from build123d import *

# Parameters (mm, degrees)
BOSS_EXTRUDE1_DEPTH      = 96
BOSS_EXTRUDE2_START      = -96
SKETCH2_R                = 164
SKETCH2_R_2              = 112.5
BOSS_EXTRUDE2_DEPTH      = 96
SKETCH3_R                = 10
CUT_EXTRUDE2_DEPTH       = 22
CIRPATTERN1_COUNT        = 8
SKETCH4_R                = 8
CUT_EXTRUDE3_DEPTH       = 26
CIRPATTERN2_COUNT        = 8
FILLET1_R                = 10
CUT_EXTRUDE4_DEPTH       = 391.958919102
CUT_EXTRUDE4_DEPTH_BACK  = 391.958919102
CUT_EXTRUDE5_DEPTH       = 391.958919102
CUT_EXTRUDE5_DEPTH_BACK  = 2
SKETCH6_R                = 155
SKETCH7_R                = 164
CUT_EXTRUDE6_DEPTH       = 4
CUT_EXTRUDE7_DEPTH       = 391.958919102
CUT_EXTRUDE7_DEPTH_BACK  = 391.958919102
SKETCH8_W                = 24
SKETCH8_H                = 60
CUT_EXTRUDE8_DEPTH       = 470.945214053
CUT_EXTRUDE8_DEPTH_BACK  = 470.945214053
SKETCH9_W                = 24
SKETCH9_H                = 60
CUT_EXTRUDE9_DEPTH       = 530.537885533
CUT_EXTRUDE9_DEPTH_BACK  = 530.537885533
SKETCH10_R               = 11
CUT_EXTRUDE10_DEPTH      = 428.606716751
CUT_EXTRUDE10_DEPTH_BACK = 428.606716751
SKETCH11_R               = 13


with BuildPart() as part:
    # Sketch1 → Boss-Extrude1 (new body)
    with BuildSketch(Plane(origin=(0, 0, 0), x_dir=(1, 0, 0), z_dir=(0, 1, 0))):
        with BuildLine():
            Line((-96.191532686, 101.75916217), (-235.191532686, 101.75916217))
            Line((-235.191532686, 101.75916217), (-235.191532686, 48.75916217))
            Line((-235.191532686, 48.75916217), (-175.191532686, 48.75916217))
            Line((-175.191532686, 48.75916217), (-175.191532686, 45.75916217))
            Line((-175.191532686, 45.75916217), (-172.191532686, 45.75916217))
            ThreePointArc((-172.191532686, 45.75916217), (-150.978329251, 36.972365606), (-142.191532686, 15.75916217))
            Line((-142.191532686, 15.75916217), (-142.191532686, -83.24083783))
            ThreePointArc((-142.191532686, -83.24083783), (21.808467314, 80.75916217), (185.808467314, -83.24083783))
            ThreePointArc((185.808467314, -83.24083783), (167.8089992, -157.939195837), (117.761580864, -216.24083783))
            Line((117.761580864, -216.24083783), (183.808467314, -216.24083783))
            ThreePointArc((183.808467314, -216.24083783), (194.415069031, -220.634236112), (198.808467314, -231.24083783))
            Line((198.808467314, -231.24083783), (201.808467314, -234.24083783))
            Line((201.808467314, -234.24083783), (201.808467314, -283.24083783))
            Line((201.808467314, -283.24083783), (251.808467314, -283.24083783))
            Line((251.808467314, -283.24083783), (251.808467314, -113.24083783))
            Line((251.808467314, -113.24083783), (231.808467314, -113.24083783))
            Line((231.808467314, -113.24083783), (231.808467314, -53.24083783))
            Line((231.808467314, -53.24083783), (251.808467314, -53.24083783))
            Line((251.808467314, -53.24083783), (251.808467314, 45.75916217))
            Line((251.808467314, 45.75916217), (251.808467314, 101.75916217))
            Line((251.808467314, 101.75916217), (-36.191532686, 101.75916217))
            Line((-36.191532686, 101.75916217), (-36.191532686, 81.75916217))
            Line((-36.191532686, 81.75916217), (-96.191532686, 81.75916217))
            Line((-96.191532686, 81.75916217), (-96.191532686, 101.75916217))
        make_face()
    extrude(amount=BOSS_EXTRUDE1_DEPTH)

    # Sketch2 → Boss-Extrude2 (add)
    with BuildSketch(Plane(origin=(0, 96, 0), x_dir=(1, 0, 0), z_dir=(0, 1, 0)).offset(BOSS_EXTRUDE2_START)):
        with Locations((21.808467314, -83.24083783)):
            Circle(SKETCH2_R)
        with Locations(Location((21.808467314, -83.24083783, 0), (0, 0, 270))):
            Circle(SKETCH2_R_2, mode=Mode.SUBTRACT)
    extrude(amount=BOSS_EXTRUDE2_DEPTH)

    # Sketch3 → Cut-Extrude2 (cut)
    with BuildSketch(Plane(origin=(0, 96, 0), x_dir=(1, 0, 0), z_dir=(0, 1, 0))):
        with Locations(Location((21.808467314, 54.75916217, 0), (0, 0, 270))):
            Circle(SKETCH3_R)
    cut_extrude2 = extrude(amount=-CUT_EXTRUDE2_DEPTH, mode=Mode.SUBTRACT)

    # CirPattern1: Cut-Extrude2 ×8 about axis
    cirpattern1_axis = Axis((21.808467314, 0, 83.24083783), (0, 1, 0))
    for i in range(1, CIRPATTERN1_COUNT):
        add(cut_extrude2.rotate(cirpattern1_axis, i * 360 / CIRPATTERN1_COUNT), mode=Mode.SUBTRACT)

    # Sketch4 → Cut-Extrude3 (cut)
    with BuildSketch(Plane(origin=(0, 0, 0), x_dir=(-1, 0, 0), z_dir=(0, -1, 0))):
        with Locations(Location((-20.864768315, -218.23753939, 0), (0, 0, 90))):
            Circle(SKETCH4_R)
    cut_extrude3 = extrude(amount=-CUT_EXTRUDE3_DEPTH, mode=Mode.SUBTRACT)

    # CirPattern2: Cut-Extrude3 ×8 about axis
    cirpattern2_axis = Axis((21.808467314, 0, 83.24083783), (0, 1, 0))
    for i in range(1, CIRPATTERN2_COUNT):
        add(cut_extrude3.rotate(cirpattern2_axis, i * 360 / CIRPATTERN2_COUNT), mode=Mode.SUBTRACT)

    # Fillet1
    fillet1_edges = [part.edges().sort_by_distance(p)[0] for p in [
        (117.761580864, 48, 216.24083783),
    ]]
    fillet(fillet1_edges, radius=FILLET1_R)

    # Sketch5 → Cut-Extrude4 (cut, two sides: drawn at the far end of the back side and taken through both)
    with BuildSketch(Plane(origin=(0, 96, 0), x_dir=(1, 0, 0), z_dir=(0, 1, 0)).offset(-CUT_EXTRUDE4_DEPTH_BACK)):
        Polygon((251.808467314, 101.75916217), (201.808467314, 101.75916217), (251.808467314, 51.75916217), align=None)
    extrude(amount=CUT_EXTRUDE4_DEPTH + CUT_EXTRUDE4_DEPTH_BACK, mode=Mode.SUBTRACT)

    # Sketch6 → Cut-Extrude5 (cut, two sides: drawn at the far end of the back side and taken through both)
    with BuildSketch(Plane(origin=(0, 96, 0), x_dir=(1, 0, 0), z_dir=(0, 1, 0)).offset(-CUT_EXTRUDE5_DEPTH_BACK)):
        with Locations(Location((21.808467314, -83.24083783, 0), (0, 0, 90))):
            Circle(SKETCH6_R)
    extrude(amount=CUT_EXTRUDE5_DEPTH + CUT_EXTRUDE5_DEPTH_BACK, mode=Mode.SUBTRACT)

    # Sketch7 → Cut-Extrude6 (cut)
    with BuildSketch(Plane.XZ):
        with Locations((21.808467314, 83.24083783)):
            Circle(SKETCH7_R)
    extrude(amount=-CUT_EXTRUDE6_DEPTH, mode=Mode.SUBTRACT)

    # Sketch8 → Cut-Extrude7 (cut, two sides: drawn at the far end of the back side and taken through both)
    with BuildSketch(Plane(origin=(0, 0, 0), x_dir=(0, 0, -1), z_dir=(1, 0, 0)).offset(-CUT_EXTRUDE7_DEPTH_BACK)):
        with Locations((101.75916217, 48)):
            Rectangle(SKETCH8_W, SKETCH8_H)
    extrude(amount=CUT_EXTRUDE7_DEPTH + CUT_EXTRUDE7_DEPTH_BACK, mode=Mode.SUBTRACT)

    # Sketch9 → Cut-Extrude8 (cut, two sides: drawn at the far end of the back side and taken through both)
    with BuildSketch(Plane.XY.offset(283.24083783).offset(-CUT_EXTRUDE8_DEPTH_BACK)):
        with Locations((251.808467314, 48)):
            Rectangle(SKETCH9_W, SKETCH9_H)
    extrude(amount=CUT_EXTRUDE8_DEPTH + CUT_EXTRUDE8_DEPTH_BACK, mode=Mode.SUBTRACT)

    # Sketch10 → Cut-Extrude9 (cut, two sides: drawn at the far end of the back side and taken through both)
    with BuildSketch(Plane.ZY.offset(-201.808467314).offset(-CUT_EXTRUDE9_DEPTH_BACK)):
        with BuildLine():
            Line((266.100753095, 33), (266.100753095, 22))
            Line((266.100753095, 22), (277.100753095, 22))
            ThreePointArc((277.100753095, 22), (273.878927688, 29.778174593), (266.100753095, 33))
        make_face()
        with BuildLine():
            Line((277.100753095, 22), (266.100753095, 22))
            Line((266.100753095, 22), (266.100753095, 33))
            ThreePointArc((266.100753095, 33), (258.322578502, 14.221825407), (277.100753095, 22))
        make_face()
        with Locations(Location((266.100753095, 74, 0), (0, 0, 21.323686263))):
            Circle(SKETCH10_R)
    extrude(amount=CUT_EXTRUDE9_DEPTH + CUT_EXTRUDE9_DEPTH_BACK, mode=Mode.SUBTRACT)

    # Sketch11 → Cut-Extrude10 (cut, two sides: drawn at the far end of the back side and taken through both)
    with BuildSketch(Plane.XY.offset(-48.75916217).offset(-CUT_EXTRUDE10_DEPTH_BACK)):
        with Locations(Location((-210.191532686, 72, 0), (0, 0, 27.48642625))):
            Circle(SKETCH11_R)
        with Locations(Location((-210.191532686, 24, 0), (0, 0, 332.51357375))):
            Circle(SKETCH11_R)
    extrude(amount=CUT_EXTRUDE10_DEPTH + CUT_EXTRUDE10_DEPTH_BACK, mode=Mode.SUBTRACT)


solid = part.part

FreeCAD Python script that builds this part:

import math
import FreeCAD as App
import Part
import Sketcher
Q = App.Units.Quantity


def edges_at(feature, points):
    """Names of the edges that pass closest to the given points."""
    edges = feature.Shape.Edges
    near = lambda p: min(range(len(edges)), key=lambda i: edges[i].distToShape(Part.Vertex(*p))[0])
    return sorted({f"Edge{near(p) + 1}" for p in points})

doc = App.newDocument("Part")
body = doc.addObject("PartDesign::Body", "Body")

sketch1 = body.newObject("Sketcher::SketchObject", "Sketch")
sketch1.AttachmentSupport = (doc.getObject("XZ_Plane"), [""])
sketch1.MapMode = "FlatFace"
sketch1.addGeometry([
    Part.LineSegment(App.Vector(-96.191533, -101.759162, 0), App.Vector(-235.191533, -101.759162, 0)),
    Part.LineSegment(App.Vector(-235.191533, -101.759162, 0), App.Vector(-235.191533, -48.759162, 0)),
    Part.LineSegment(App.Vector(-235.191533, -48.759162, 0), App.Vector(-175.191533, -48.759162, 0)),
    Part.LineSegment(App.Vector(-175.191533, -48.759162, 0), App.Vector(-175.191533, -45.759162, 0)),
    Part.LineSegment(App.Vector(-175.191533, -45.759162, 0), App.Vector(-172.191533, -45.759162, 0)),
    Part.ArcOfCircle(Part.Circle(App.Vector(-172.191533, -15.759162, 0), App.Vector(0, 0, 1), 30), math.radians(-90), math.radians(0)),
    Part.LineSegment(App.Vector(-142.191533, -15.759162, 0), App.Vector(-142.191533, 83.240838, 0)),
    Part.ArcOfCircle(Part.Circle(App.Vector(21.808467, 83.240838, 0), App.Vector(0, 0, 1), 164), math.radians(180), math.radians(360)),
    Part.ArcOfCircle(Part.Circle(App.Vector(21.808467, 83.240838, 0), App.Vector(0, 0, 1), 164), math.radians(0), math.radians(54.191361)),
    Part.LineSegment(App.Vector(117.761581, 216.240838, 0), App.Vector(183.808467, 216.240838, 0)),
    Part.ArcOfCircle(Part.Circle(App.Vector(183.808467, 231.240838, 0), App.Vector(0, 0, 1), 15), math.radians(-90), math.radians(0)),
    Part.LineSegment(App.Vector(198.808467, 231.240838, 0), App.Vector(201.808467, 234.240838, 0)),
    Part.LineSegment(App.Vector(201.808467, 234.240838, 0), App.Vector(201.808467, 283.240838, 0)),
    Part.LineSegment(App.Vector(201.808467, 283.240838, 0), App.Vector(251.808467, 283.240838, 0)),
    Part.LineSegment(App.Vector(251.808467, 283.240838, 0), App.Vector(251.808467, 113.240838, 0)),
    Part.LineSegment(App.Vector(251.808467, 113.240838, 0), App.Vector(231.808467, 113.240838, 0)),
    Part.LineSegment(App.Vector(231.808467, 113.240838, 0), App.Vector(231.808467, 53.240838, 0)),
    Part.LineSegment(App.Vector(231.808467, 53.240838, 0), App.Vector(251.808467, 53.240838, 0)),
    Part.LineSegment(App.Vector(251.808467, 53.240838, 0), App.Vector(251.808467, -101.759162, 0)),
    Part.LineSegment(App.Vector(251.808467, -101.759162, 0), App.Vector(-36.191533, -101.759162, 0)),
    Part.LineSegment(App.Vector(-36.191533, -101.759162, 0), App.Vector(-36.191533, -81.759162, 0)),
    Part.LineSegment(App.Vector(-36.191533, -81.759162, 0), App.Vector(-96.191533, -81.759162, 0)),
    Part.LineSegment(App.Vector(-96.191533, -81.759162, 0), App.Vector(-96.191533, -101.759162, 0)),
], False)
sketch1.addConstraint([
    Sketcher.Constraint("Coincident", 0, 2, 1, 1),
    Sketcher.Constraint("Coincident", 1, 2, 2, 1),
    Sketcher.Constraint("Coincident", 2, 2, 3, 1),
    Sketcher.Constraint("Coincident", 3, 2, 4, 1),
    Sketcher.Constraint("Tangent", 4, 2, 5, 1),
    Sketcher.Constraint("Tangent", 5, 2, 6, 1),
    Sketcher.Constraint("Tangent", 6, 2, 7, 1),
    Sketcher.Constraint("Tangent", 7, 2, 8, 1),
    Sketcher.Constraint("Coincident", 8, 2, 9, 1),
    Sketcher.Constraint("Tangent", 9, 2, 10, 1),
    Sketcher.Constraint("Coincident", 10, 2, 11, 1),
    Sketcher.Constraint("Coincident", 11, 2, 12, 1),
    Sketcher.Constraint("Coincident", 12, 2, 13, 1),
    Sketcher.Constraint("Coincident", 13, 2, 14, 1),
    Sketcher.Constraint("Coincident", 14, 2, 15, 1),
    Sketcher.Constraint("Coincident", 15, 2, 16, 1),
    Sketcher.Constraint("Coincident", 16, 2, 17, 1),
    Sketcher.Constraint("Coincident", 17, 2, 18, 1),
    Sketcher.Constraint("Coincident", 18, 2, 19, 1),
    Sketcher.Constraint("Coincident", 19, 2, 20, 1),
    Sketcher.Constraint("Coincident", 20, 2, 21, 1),
    Sketcher.Constraint("Coincident", 21, 2, 22, 1),
    Sketcher.Constraint("Coincident", 22, 2, 0, 1),
    Sketcher.Constraint("Horizontal", 0),
    Sketcher.Constraint("Vertical", 1),
    Sketcher.Constraint("Horizontal", 2),
    Sketcher.Constraint("Vertical", 3),
    Sketcher.Constraint("Horizontal", 4),
    Sketcher.Constraint("Vertical", 6),
    Sketcher.Constraint("Horizontal", 9),
    Sketcher.Constraint("Vertical", 12),
    Sketcher.Constraint("Horizontal", 13),
    Sketcher.Constraint("Vertical", 14),
    Sketcher.Constraint("Horizontal", 15),
    Sketcher.Constraint("Vertical", 16),
    Sketcher.Constraint("Horizontal", 17),
    Sketcher.Constraint("Vertical", 18),
    Sketcher.Constraint("Horizontal", 19),
    Sketcher.Constraint("Vertical", 20),
    Sketcher.Constraint("Horizontal", 21),
    Sketcher.Constraint("Vertical", 22),
    Sketcher.Constraint("Equal", 7, 8),
    Sketcher.Constraint("Horizontal", 6, 2, 7, 2),
    Sketcher.Constraint("Horizontal", 0, 2, 18, 2),
    Sketcher.Constraint("Vertical", 14, 2, 17, 2),
    Sketcher.Constraint("Equal", 2, 21),
    Sketcher.Constraint("Equal", 4, 3),
    Sketcher.Constraint("Equal", 21, 16),
    Sketcher.Constraint("Equal", 17, 20),
    Sketcher.Constraint("Radius", 5, Q("30 mm")),
    Sketcher.Constraint("Radius", 7, Q("164 mm")),
    Sketcher.Constraint("Radius", 10, Q("15 mm")),
    Sketcher.Constraint("DistanceX", 0, 2, 0, 1, Q("139 mm")),
    Sketcher.Constraint("DistanceX", 2, 1, 2, 2, Q("60 mm")),
    Sketcher.Constraint("DistanceX", 4, 1, 4, 2, Q("3 mm")),
    Sketcher.Constraint("DistanceX", 13, 1, 13, 2, Q("50 mm")),
    Sketcher.Constraint("DistanceX", 15, 2, 15, 1, Q("20 mm")),
    Sketcher.Constraint("DistanceX", 19, 2, 19, 1, Q("288 mm")),
    Sketcher.Constraint("DistanceY", 1, 1, 1, 2, Q("53 mm")),
    Sketcher.Constraint("DistanceY", 6, 1, 6, 2, Q("99 mm")),
    Sketcher.Constraint("DistanceY", 12, 1, 12, 2, Q("49 mm")),
    Sketcher.Constraint("DistanceY", 14, 2, 14, 1, Q("170 mm")),
    Sketcher.Constraint("DistanceY", 18, 2, 18, 1, Q("155 mm")),
    Sketcher.Constraint("Angle", 11, Q("45 deg")),
    Sketcher.Constraint("DistanceX", 7, 3, 10, 3, Q("162 mm")),
    Sketcher.Constraint("DistanceY", 7, 3, 10, 3, Q("148 mm")),
    Sketcher.Constraint("DistanceX", 5, 3, -1, 1, Q("172.191533 mm")),
    Sketcher.Constraint("DistanceY", 5, 3, -1, 1, Q("15.759162 mm")),
])
pad1 = body.newObject("PartDesign::Pad", "Pad")
pad1.Profile = sketch1
pad1.Length = 96
pad1.Reversed = True

sketch2 = body.newObject("Sketcher::SketchObject", "Sketch001")
sketch2.AttachmentSupport = (doc.getObject("XZ_Plane"), [""])
sketch2.MapMode = "FlatFace"
sketch2.addGeometry([
    Part.Circle(App.Vector(21.808467, 83.240838, 0), App.Vector(0, 0, 1), 164),
    Part.Circle(App.Vector(21.808467, 83.240838, 0), App.Vector(0, 0, 1), 112.5),
], False)
sketch2.addConstraint([
    Sketcher.Constraint("Coincident", 1, 3, 0, 3),
    Sketcher.Constraint("Diameter", 0, Q("328 mm")),
    Sketcher.Constraint("Diameter", 1, Q("225 mm")),
    Sketcher.Constraint("DistanceX", -1, 1, 0, 3, Q("21.808467 mm")),
    Sketcher.Constraint("DistanceY", -1, 1, 0, 3, Q("83.240838 mm")),
])
pad2 = body.newObject("PartDesign::Pad", "Pad001")
pad2.Profile = sketch2
pad2.Length = 96
pad2.Reversed = True

sketch3 = body.newObject("Sketcher::SketchObject", "Sketch002")
sketch3.AttachmentSupport = (doc.getObject("XZ_Plane"), [""])
sketch3.MapMode = "FlatFace"
sketch3.AttachmentOffset = App.Placement(App.Vector(0, 0, -96), App.Rotation())
sketch3.addGeometry(Part.Circle(App.Vector(21.808467, -54.759162, 0), App.Vector(0, 0, 1), 10), False)
sketch3.addConstraint([
    Sketcher.Constraint("Diameter", 0, Q("20 mm")),
    Sketcher.Constraint("DistanceX", -1, 1, 0, 3, Q("21.808467 mm")),
    Sketcher.Constraint("DistanceY", 0, 3, -1, 1, Q("54.759162 mm")),
])
pocket1 = body.newObject("PartDesign::Pocket", "Pocket")
pocket1.Profile = sketch3
pocket1.Length = 22
pocket1.Reversed = True
doc.recompute()

datumline = body.newObject("PartDesign::Line", "DatumLine")
datumline.Placement = App.Placement(App.Vector(21.808467, 0, 83.240838), App.Rotation(App.Vector(0, 0, 1), App.Vector(0, 1, 0)))
polarpattern = body.newObject("PartDesign::PolarPattern", "PolarPattern")
polarpattern.Originals = [pocket1]
polarpattern.Axis = (datumline, [""])
polarpattern.Angle = 360
polarpattern.Occurrences = 8
body.Tip = polarpattern

sketch4 = body.newObject("Sketcher::SketchObject", "Sketch003")
sketch4.AttachmentSupport = (doc.getObject("XZ_Plane"), [""])
sketch4.MapMode = "FlatFace"
sketch4.addGeometry(Part.Circle(App.Vector(20.864768, 218.237539, 0), App.Vector(0, 0, 1), 8), False)
sketch4.addConstraint([
    Sketcher.Constraint("Diameter", 0, Q("16 mm")),
    Sketcher.Constraint("DistanceX", -1, 1, 0, 3, Q("20.864768 mm")),
    Sketcher.Constraint("DistanceY", -1, 1, 0, 3, Q("218.237539 mm")),
])
pocket2 = body.newObject("PartDesign::Pocket", "Pocket001")
pocket2.Profile = sketch4
pocket2.Length = 26
doc.recompute()

datumline2 = body.newObject("PartDesign::Line", "DatumLine001")
datumline2.Placement = App.Placement(App.Vector(21.808467, 0, 83.240838), App.Rotation(App.Vector(0, 0, 1), App.Vector(0, 1, 0)))
polarpattern2 = body.newObject("PartDesign::PolarPattern", "PolarPattern001")
polarpattern2.Originals = [pocket2]
polarpattern2.Axis = (datumline2, [""])
polarpattern2.Angle = 360
polarpattern2.Occurrences = 8
body.Tip = polarpattern2
doc.recompute()

fillet = body.newObject("PartDesign::Fillet", "Fillet")
fillet.Base = (polarpattern2, edges_at(polarpattern2, [(117.762, 48, 216.241)]))
fillet.Radius = 10

sketch5 = body.newObject("Sketcher::SketchObject", "Sketch004")
sketch5.AttachmentSupport = (doc.getObject("XZ_Plane"), [""])
sketch5.MapMode = "FlatFace"
sketch5.AttachmentOffset = App.Placement(App.Vector(0, 0, -96), App.Rotation())
sketch5.addGeometry([
    Part.LineSegment(App.Vector(251.808467, -101.759162, 0), App.Vector(201.808467, -101.759162, 0)),
    Part.LineSegment(App.Vector(201.808467, -101.759162, 0), App.Vector(251.808467, -51.759162, 0)),
    Part.LineSegment(App.Vector(251.808467, -51.759162, 0), App.Vector(251.808467, -101.759162, 0)),
], False)
sketch5.addConstraint([
    Sketcher.Constraint("Coincident", 0, 2, 1, 1),
    Sketcher.Constraint("Coincident", 1, 2, 2, 1),
    Sketcher.Constraint("Coincident", 2, 2, 0, 1),
    Sketcher.Constraint("Horizontal", 0),
    Sketcher.Constraint("Vertical", 2),
    Sketcher.Constraint("Equal", 0, 2),
    Sketcher.Constraint("DistanceX", 0, 2, 0, 1, Q("50 mm")),
    Sketcher.Constraint("DistanceX", -1, 1, 0, 2, Q("201.808467 mm")),
    Sketcher.Constraint("DistanceY", 0, 2, -1, 1, Q("101.759162 mm")),
])
pocket3 = body.newObject("PartDesign::Pocket", "Pocket002")
pocket3.Profile = sketch5
pocket3.Type = "ThroughAll"
pocket3.Midplane = True

sketch6 = body.newObject("Sketcher::SketchObject", "Sketch005")
sketch6.AttachmentSupport = (doc.getObject("XZ_Plane"), [""])
sketch6.MapMode = "FlatFace"
sketch6.AttachmentOffset = App.Placement(App.Vector(0, 0, -96), App.Rotation())
sketch6.addGeometry(Part.Circle(App.Vector(21.808467, 83.240838, 0), App.Vector(0, 0, 1), 155), False)
sketch6.addConstraint([
    Sketcher.Constraint("Diameter", 0, Q("310 mm")),
    Sketcher.Constraint("DistanceX", -1, 1, 0, 3, Q("21.808467 mm")),
    Sketcher.Constraint("DistanceY", -1, 1, 0, 3, Q("83.240838 mm")),
])
pocket4 = body.newObject("PartDesign::Pocket", "Pocket003")
pocket4.Profile = sketch6
pocket4.Type = "TwoLengths"
pocket4.Length = 391.958919
pocket4.Length2 = 2

sketch7 = body.newObject("Sketcher::SketchObject", "Sketch006")
sketch7.AttachmentSupport = (doc.getObject("XZ_Plane"), [""])
sketch7.MapMode = "FlatFace"
sketch7.addGeometry(Part.Circle(App.Vector(21.808467, 83.240838, 0), App.Vector(0, 0, 1), 164), False)
sketch7.addConstraint([
    Sketcher.Constraint("Diameter", 0, Q("328 mm")),
    Sketcher.Constraint("DistanceX", -1, 1, 0, 3, Q("21.808467 mm")),
    Sketcher.Constraint("DistanceY", -1, 1, 0, 3, Q("83.240838 mm")),
])
pocket5 = body.newObject("PartDesign::Pocket", "Pocket004")
pocket5.Profile = sketch7
pocket5.Length = 4

sketch8 = body.newObject("Sketcher::SketchObject", "Sketch007")
sketch8.AttachmentSupport = (doc.getObject("YZ_Plane"), [""])
sketch8.MapMode = "FlatFace"
sketch8.addGeometry([
    Part.LineSegment(App.Vector(78, -89.759162, 0), App.Vector(18, -89.759162, 0)),
    Part.LineSegment(App.Vector(18, -89.759162, 0), App.Vector(18, -113.759162, 0)),
    Part.LineSegment(App.Vector(18, -113.759162, 0), App.Vector(78, -113.759162, 0)),
    Part.LineSegment(App.Vector(78, -113.759162, 0), App.Vector(78, -89.759162, 0)),
], False)
sketch8.addConstraint([
    Sketcher.Constraint("Coincident", 0, 2, 1, 1),
    Sketcher.Constraint("Coincident", 1, 2, 2, 1),
    Sketcher.Constraint("Coincident", 2, 2, 3, 1),
    Sketcher.Constraint("Coincident", 3, 2, 0, 1),
    Sketcher.Constraint("Horizontal", 0),
    Sketcher.Constraint("Vertical", 1),
    Sketcher.Constraint("Horizontal", 2),
    Sketcher.Constraint("Vertical", 3),
    Sketcher.Constraint("DistanceX", 0, 2, 0, 1, Q("60 mm")),
    Sketcher.Constraint("DistanceY", 1, 2, 1, 1, Q("24 mm")),
    Sketcher.Constraint("DistanceX", -1, 1, 0, 2, Q("18 mm")),
    Sketcher.Constraint("DistanceY", 0, 2, -1, 1, Q("89.759162 mm")),
])
pocket6 = body.newObject("PartDesign::Pocket", "Pocket005")
pocket6.Profile = sketch8
pocket6.Type = "ThroughAll"
pocket6.Midplane = True

sketch9 = body.newObject("Sketcher::SketchObject", "Sketch008")
sketch9.AttachmentSupport = (doc.getObject("XY_Plane"), [""])
sketch9.MapMode = "FlatFace"
sketch9.AttachmentOffset = App.Placement(App.Vector(0, 0, 283.240838), App.Rotation())
sketch9.addGeometry([
    Part.LineSegment(App.Vector(239.808467, 78, 0), App.Vector(239.808467, 18, 0)),
    Part.LineSegment(App.Vector(239.808467, 18, 0), App.Vector(263.808467, 18, 0)),
    Part.LineSegment(App.Vector(263.808467, 18, 0), App.Vector(263.808467, 78, 0)),
    Part.LineSegment(App.Vector(263.808467, 78, 0), App.Vector(239.808467, 78, 0)),
], False)
sketch9.addConstraint([
    Sketcher.Constraint("Coincident", 0, 2, 1, 1),
    Sketcher.Constraint("Coincident", 1, 2, 2, 1),
    Sketcher.Constraint("Coincident", 2, 2, 3, 1),
    Sketcher.Constraint("Coincident", 3, 2, 0, 1),
    Sketcher.Constraint("Vertical", 0),
    Sketcher.Constraint("Horizontal", 1),
    Sketcher.Constraint("Vertical", 2),
    Sketcher.Constraint("Horizontal", 3),
    Sketcher.Constraint("DistanceX", 1, 1, 1, 2, Q("24 mm")),
    Sketcher.Constraint("DistanceY", 0, 2, 0, 1, Q("60 mm")),
    Sketcher.Constraint("DistanceY", -1, 1, 0, 2, Q("18 mm")),
    Sketcher.Constraint("DistanceX", -1, 1, 0, 2, Q("239.808467 mm")),
])
pocket7 = body.newObject("PartDesign::Pocket", "Pocket006")
pocket7.Profile = sketch9
pocket7.Type = "ThroughAll"
pocket7.Midplane = True

sketch10 = body.newObject("Sketcher::SketchObject", "Sketch009")
sketch10.AttachmentSupport = (doc.getObject("YZ_Plane"), [""])
sketch10.MapMode = "FlatFace"
sketch10.AttachmentOffset = App.Placement(App.Vector(0, 0, 201.808467), App.Rotation())
sketch10.addGeometry([
    Part.ArcOfCircle(Part.Circle(App.Vector(22, 266.100753, 0), App.Vector(0, 0, 1), 11), math.radians(0), math.radians(90)),
    Part.ArcOfCircle(Part.Circle(App.Vector(22, 266.100753, 0), App.Vector(0, 0, 1), 11), math.radians(90), math.radians(360)),
    Part.Circle(App.Vector(74, 266.100753, 0), App.Vector(0, 0, 1), 11),
], False)
sketch10.addConstraint([
    Sketcher.Constraint("Tangent", 0, 1, 1, 2),
    Sketcher.Constraint("Coincident", 1, 1, 0, 2),
    Sketcher.Constraint("Equal", 1, 2),
    Sketcher.Constraint("Horizontal", 1, 3, 2, 3),
    Sketcher.Constraint("Horizontal", 2, 3, 0, 1),
    Sketcher.Constraint("Vertical", 0, 3, 1, 1),
    Sketcher.Constraint("Diameter", 2, Q("22 mm")),
    Sketcher.Constraint("DistanceX", -1, 1, 0, 3, Q("22 mm")),
    Sketcher.Constraint("DistanceX", -1, 1, 2, 3, Q("74 mm")),
    Sketcher.Constraint("DistanceY", -1, 1, 0, 3, Q("266.100753 mm")),
])
pocket8 = body.newObject("PartDesign::Pocket", "Pocket007")
pocket8.Profile = sketch10
pocket8.Type = "ThroughAll"
pocket8.Midplane = True

sketch11 = body.newObject("Sketcher::SketchObject", "Sketch010")
sketch11.AttachmentSupport = (doc.getObject("XY_Plane"), [""])
sketch11.MapMode = "FlatFace"
sketch11.AttachmentOffset = App.Placement(App.Vector(0, 0, -48.759162), App.Rotation())
sketch11.addGeometry([
    Part.Circle(App.Vector(-210.191533, 72, 0), App.Vector(0, 0, 1), 13),
    Part.Circle(App.Vector(-210.191533, 24, 0), App.Vector(0, 0, 1), 13),
], False)
sketch11.addConstraint([
    Sketcher.Constraint("Equal", 0, 1),
    Sketcher.Constraint("Vertical", 0, 3, 1, 3),
    Sketcher.Constraint("Diameter", 0, Q("26 mm")),
    Sketcher.Constraint("DistanceY", -1, 1, 0, 3, Q("72 mm")),
    Sketcher.Constraint("DistanceY", -1, 1, 1, 3, Q("24 mm")),
    Sketcher.Constraint("DistanceX", 0, 3, -1, 1, Q("210.191533 mm")),
])
pocket9 = body.newObject("PartDesign::Pocket", "Pocket008")
pocket9.Profile = sketch11
pocket9.Type = "ThroughAll"
pocket9.Midplane = True

doc.recompute()
